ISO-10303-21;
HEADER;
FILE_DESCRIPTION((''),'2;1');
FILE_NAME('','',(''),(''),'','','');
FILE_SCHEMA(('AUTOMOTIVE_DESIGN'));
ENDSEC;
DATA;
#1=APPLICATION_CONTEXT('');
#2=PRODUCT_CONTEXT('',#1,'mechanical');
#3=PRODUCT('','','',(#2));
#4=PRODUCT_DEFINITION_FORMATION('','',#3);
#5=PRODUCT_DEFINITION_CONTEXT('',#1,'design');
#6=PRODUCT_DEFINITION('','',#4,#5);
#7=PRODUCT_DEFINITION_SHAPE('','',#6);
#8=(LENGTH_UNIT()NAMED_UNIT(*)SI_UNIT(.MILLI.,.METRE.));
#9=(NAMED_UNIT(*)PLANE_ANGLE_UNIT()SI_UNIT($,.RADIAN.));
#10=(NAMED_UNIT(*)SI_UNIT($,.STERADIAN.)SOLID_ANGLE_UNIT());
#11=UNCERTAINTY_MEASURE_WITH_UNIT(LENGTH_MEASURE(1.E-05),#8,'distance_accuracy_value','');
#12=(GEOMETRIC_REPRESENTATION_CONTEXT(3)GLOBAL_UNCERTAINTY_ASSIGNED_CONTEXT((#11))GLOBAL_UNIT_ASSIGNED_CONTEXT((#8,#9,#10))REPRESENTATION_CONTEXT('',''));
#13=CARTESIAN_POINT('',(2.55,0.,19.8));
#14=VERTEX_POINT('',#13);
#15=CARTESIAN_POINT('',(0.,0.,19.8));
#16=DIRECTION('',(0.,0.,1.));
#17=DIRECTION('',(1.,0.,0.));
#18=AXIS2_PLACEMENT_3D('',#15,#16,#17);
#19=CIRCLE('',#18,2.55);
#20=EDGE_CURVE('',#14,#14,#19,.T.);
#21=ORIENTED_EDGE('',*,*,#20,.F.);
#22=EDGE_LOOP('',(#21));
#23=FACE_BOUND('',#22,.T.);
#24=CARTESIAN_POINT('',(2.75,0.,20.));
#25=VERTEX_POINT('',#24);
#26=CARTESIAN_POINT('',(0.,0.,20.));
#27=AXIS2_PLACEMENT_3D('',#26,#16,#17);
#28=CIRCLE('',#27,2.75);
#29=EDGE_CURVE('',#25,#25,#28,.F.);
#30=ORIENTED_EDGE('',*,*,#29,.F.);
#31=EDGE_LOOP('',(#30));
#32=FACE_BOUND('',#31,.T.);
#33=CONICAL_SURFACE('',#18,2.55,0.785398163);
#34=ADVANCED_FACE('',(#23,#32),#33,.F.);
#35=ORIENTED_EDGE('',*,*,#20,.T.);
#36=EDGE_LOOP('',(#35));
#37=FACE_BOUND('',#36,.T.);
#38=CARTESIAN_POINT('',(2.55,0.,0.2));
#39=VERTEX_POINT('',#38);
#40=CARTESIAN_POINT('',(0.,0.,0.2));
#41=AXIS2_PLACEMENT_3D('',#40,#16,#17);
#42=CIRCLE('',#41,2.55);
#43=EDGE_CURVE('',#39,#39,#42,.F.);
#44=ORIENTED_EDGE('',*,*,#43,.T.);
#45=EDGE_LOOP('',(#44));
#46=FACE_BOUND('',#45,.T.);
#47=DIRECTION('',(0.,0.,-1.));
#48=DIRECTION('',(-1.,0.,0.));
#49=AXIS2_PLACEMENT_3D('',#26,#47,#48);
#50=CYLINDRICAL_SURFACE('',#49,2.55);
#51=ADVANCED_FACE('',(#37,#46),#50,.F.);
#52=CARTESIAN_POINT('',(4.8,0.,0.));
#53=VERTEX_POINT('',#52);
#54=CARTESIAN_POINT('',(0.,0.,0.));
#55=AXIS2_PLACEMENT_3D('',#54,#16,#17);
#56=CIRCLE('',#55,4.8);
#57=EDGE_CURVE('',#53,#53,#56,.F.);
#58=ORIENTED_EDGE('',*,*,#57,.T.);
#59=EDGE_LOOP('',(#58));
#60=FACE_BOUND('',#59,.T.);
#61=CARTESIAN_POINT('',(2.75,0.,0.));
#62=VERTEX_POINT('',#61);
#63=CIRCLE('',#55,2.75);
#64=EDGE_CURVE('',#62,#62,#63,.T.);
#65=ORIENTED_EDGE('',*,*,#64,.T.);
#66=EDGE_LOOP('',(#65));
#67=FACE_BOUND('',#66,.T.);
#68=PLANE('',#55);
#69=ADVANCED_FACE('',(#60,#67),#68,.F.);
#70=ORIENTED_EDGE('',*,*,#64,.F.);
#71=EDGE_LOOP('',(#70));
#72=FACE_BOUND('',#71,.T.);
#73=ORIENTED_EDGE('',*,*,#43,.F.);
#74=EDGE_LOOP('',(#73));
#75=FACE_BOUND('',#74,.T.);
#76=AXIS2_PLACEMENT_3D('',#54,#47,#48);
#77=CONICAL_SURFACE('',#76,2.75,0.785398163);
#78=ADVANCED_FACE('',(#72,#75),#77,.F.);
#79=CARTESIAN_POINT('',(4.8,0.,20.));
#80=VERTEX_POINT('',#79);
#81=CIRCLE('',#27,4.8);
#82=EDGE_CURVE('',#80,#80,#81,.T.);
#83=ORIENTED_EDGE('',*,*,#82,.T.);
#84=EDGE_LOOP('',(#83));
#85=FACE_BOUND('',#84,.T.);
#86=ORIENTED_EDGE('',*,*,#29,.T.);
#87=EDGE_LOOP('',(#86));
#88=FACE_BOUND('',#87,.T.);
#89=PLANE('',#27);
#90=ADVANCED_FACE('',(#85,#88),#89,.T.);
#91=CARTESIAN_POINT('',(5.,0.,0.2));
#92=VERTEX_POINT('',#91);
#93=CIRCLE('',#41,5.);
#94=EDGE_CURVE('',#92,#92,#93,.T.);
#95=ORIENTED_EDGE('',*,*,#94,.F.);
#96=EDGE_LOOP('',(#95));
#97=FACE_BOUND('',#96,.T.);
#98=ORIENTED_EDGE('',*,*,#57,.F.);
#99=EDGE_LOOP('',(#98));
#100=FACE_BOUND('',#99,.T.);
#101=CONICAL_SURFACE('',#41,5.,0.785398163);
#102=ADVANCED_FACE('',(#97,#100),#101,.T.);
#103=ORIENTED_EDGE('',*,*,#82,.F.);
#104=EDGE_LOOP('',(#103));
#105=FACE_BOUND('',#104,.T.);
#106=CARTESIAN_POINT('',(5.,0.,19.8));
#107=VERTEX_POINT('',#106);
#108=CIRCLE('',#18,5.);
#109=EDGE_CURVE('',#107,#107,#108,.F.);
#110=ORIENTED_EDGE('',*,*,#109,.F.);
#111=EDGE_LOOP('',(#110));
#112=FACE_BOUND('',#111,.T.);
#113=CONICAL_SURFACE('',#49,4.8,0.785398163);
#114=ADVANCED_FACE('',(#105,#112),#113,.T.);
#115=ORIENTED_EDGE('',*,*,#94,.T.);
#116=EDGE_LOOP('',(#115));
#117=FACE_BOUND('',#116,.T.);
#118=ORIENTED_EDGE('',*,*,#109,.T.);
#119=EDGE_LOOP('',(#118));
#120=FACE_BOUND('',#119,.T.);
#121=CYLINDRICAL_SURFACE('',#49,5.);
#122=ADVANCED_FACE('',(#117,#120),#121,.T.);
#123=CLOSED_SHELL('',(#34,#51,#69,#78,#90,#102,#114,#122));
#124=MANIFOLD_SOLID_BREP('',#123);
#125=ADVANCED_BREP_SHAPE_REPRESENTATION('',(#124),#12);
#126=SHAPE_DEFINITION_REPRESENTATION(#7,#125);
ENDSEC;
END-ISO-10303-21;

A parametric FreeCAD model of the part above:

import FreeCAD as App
import Part
import Sketcher

V = App.Vector


def edges_at(feature, points):
    """Names of the edges that pass closest to the given points."""
    edges = feature.Shape.Edges
    near = lambda p: min(range(len(edges)), key=lambda i: edges[i].distToShape(Part.Vertex(*p))[0])
    return sorted({f"Edge{near(p) + 1}" for p in points})

doc = App.newDocument("Part")
body = doc.addObject("PartDesign::Body", "Body")

# Sketch on XY plane
sketch1 = body.newObject("Sketcher::SketchObject", "Sketch")
sketch1.AttachmentSupport = (doc.getObject("XY_Plane"), [""])
sketch1.MapMode = "FlatFace"
sketch1.addGeometry(Part.Circle(V(0, 0, 0), V(0, 0, 1), 5), False)
sketch1.addGeometry(Part.Circle(V(0, 0, 0), V(0, 0, 1), 2.55), False)
sketch1.addConstraint(Sketcher.Constraint("Coincident", 0, 3, -1, 1))
sketch1.addConstraint(Sketcher.Constraint("Coincident", 1, 3, -1, 1))
sketch1.addConstraint(Sketcher.Constraint("Diameter", 0, 10.0))
sketch1.addConstraint(Sketcher.Constraint("Diameter", 1, 5.1))
pad1 = body.newObject("PartDesign::Pad", "Pad")
pad1.Profile = sketch1
pad1.Length = 20
doc.recompute()

chamfer = body.newObject("PartDesign::Chamfer", "Chamfer")
chamfer.Base = (pad1, edges_at(pad1, [
    (-5, 0, 0),
    (-5, 0, 20),
    (-2.55, 0, 0),
    (-2.55, 0, 20),
]))
chamfer.Size = 0.2

doc.recompute()
